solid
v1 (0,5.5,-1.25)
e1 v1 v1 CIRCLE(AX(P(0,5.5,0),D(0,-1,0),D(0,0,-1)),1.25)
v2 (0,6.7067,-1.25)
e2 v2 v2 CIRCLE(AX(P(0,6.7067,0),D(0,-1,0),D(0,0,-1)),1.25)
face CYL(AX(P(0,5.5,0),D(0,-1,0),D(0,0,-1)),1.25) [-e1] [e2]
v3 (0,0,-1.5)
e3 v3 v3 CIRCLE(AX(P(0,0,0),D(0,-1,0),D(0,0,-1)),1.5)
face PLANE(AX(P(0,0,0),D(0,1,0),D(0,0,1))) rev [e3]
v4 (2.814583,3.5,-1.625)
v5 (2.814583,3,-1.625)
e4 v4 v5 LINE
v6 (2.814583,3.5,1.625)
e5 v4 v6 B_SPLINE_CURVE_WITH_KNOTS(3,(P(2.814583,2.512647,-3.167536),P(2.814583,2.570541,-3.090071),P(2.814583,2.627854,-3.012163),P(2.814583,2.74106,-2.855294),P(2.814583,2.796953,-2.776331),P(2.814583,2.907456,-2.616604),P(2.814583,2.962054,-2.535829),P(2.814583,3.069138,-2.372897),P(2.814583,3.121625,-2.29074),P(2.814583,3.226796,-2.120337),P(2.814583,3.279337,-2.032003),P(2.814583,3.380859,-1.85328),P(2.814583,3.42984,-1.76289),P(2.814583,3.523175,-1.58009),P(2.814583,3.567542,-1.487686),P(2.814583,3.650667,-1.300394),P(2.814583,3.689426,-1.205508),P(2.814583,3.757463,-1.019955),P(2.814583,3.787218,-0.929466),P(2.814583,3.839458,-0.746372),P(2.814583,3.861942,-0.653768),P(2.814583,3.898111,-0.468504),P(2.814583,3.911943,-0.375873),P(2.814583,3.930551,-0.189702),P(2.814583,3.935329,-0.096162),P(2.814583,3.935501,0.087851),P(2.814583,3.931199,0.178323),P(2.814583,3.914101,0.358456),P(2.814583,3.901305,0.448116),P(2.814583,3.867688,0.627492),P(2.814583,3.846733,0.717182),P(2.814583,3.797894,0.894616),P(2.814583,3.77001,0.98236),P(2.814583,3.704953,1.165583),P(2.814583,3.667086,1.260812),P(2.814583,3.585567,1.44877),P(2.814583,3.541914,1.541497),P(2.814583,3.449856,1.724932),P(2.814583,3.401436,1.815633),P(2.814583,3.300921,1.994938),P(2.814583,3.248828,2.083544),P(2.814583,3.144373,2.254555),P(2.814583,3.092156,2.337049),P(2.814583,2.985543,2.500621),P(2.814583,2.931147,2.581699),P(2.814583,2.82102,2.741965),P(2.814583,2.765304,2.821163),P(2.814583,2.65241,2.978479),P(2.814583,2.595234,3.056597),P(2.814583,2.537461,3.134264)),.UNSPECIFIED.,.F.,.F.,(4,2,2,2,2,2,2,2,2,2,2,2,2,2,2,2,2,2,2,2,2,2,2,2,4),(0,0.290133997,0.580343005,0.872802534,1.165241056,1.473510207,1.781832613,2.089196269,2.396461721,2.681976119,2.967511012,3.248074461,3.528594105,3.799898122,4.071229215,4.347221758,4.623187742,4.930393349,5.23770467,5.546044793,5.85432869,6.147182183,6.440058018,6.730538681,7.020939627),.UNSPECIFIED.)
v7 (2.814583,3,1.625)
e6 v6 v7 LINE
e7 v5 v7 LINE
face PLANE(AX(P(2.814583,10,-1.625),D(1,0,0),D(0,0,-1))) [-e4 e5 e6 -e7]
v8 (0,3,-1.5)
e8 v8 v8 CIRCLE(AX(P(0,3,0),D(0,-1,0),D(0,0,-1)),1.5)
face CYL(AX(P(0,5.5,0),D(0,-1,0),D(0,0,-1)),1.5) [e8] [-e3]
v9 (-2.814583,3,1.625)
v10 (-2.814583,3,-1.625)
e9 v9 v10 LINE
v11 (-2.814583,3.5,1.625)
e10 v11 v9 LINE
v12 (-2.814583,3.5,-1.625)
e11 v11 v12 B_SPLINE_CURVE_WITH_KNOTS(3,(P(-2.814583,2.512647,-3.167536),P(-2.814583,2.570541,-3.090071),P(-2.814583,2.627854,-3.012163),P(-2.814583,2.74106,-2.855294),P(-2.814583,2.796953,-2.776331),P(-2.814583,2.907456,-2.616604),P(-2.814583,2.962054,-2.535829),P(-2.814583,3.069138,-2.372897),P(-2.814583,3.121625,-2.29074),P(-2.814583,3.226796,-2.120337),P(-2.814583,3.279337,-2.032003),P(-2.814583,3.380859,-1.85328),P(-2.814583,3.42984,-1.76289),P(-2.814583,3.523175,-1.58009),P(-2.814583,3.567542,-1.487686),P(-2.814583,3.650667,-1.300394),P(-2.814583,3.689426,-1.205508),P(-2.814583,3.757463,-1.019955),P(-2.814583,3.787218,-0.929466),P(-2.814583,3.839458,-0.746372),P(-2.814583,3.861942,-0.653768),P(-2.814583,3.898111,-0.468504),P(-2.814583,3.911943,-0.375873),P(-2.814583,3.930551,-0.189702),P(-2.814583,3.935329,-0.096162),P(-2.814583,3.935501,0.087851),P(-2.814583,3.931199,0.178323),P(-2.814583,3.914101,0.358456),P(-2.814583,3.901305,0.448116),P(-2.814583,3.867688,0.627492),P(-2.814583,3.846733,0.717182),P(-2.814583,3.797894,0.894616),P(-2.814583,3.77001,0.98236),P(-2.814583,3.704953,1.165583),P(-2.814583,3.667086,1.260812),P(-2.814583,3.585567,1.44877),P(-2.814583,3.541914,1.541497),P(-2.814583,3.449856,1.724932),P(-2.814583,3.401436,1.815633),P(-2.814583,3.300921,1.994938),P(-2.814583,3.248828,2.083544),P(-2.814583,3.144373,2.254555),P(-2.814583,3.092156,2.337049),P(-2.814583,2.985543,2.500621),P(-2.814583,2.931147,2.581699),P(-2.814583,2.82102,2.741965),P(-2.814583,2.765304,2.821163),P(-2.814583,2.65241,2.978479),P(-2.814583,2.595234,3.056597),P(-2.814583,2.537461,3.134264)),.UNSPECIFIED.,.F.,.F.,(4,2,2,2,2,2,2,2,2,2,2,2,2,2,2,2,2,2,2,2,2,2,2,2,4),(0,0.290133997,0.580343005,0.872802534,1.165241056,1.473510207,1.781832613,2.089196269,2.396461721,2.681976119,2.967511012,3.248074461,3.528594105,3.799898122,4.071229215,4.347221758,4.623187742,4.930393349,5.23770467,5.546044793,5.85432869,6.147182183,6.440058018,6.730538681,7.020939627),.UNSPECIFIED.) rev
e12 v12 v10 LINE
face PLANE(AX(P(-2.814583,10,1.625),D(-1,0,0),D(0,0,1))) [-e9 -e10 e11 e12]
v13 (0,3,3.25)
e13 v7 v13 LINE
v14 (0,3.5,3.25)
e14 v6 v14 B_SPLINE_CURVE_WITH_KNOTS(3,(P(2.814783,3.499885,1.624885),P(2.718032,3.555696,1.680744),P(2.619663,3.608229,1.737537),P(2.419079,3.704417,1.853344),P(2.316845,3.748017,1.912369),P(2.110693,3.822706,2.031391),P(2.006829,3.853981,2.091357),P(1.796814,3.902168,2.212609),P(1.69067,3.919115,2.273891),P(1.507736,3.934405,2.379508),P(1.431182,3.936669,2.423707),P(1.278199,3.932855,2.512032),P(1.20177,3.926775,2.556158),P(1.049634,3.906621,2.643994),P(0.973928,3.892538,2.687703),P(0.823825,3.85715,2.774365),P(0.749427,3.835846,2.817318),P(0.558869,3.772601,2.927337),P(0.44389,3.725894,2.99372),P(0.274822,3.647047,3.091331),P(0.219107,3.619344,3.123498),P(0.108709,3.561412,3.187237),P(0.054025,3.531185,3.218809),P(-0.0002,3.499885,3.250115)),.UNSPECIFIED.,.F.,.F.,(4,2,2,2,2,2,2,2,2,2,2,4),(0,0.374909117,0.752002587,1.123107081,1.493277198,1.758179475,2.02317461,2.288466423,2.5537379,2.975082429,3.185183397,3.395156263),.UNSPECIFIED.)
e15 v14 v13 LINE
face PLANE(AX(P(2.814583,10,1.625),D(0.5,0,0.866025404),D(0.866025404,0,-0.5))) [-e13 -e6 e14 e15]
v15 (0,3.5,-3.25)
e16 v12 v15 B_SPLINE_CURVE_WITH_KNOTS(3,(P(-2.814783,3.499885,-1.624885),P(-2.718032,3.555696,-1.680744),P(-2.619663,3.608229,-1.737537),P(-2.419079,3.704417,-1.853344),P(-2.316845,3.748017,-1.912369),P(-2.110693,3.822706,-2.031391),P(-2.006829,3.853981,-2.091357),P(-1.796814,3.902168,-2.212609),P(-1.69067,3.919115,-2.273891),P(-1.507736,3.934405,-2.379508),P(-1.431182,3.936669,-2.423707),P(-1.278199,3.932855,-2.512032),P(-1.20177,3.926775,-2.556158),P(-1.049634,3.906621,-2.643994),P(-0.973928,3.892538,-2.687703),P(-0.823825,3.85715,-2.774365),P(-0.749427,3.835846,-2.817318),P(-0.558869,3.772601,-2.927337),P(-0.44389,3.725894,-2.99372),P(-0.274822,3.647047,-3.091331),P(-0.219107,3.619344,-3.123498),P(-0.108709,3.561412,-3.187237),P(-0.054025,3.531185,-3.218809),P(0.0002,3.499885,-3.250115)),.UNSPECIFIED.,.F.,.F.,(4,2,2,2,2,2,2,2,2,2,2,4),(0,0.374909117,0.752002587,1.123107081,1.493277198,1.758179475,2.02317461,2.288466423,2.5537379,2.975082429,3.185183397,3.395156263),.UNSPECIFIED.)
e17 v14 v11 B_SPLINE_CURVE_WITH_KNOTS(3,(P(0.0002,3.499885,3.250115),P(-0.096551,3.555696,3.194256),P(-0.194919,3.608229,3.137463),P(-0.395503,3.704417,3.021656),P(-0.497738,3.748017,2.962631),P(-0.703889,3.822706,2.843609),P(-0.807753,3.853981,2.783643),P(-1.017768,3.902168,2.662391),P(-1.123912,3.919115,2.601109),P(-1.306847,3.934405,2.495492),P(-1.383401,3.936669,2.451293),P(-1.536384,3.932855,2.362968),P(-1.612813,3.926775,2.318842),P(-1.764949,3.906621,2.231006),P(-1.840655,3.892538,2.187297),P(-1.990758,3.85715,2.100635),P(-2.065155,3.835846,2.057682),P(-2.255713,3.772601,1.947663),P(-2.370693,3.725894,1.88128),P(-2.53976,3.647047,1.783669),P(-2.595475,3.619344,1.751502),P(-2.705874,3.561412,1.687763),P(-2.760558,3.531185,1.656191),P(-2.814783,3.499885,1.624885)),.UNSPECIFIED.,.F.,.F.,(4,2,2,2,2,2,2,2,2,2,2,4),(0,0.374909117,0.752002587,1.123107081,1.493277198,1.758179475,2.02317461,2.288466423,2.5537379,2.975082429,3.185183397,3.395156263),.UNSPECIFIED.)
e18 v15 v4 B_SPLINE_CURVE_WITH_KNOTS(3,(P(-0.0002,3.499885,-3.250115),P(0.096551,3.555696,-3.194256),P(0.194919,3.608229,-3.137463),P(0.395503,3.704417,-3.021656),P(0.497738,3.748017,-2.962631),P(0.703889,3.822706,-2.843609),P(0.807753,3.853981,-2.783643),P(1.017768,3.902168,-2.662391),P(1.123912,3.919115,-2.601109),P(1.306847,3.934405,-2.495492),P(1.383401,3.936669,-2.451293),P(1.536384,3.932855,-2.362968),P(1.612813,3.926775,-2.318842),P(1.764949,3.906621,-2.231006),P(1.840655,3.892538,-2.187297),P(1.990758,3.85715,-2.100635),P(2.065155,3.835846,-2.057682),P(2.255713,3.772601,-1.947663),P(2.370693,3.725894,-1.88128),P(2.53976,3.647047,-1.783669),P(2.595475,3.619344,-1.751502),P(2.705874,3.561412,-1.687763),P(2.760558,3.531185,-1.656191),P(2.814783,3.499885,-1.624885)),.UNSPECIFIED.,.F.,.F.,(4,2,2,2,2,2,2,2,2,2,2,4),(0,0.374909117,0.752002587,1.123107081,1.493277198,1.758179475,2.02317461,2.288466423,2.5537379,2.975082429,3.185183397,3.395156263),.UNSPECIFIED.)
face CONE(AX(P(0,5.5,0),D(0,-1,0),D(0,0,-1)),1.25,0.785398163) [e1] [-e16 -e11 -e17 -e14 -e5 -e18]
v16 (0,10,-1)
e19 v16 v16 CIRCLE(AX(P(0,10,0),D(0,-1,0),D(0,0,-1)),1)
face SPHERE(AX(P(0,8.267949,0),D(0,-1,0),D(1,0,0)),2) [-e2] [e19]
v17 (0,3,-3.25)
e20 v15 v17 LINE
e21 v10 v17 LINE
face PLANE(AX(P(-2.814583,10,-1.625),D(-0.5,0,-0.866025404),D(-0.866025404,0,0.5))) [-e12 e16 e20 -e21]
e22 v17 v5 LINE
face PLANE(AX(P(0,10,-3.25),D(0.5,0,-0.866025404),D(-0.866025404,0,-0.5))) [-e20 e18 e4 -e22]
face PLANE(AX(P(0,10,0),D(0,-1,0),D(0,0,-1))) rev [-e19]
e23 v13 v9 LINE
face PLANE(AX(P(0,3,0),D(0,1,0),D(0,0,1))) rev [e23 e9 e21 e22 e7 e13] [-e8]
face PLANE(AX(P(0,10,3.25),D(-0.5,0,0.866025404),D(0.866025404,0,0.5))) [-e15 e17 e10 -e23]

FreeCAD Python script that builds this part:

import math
import FreeCAD as App
import Part
import Sketcher

V = App.Vector
Q = App.Units.Quantity

doc = App.newDocument("Part")
body = doc.addObject("PartDesign::Body", "Body")

# Sketch on XY plane
sketch1 = doc.addObject("Sketcher::SketchObject", "Sketch")
body.addObject(sketch1)
sketch1.AttachmentSupport = (doc.XY_Plane, [""])
sketch1.MapMode = "FlatFace"
sketch1.addGeometry(Part.ArcOfCircle(Part.Circle(V(0, 8.267949, 0), V(0, 0, 1), 2), math.radians(-51.317813), math.radians(60)), False)
sketch1.addGeometry(Part.LineSegment(V(1, 10, 0), V(0, 10, 0)), False)
sketch1.addGeometry(Part.LineSegment(V(0, 10, 0), V(0, 0, 0)), False)
sketch1.addGeometry(Part.LineSegment(V(0, 0, 0), V(1.5, 0, 0)), False)
sketch1.addGeometry(Part.LineSegment(V(1.5, 0, 0), V(1.5, 3, 0)), False)
sketch1.addGeometry(Part.LineSegment(V(1.5, 3, 0), V(3.25, 3, 0)), False)
sketch1.addGeometry(Part.LineSegment(V(3.25, 3, 0), V(3.25, 3.5, 0)), False)
sketch1.addGeometry(Part.LineSegment(V(3.25, 3.5, 0), V(1.25, 5.5, 0)), False)
sketch1.addGeometry(Part.LineSegment(V(1.25, 5.5, 0), V(1.25, 6.7067, 0)), False)
sketch1.addConstraint(Sketcher.Constraint("Coincident", 0, 2, 1, 1))
sketch1.addConstraint(Sketcher.Constraint("Coincident", 1, 2, 2, 1))
sketch1.addConstraint(Sketcher.Constraint("Coincident", 2, 2, 3, 1))
sketch1.addConstraint(Sketcher.Constraint("Coincident", 3, 2, 4, 1))
sketch1.addConstraint(Sketcher.Constraint("Coincident", 4, 2, 5, 1))
sketch1.addConstraint(Sketcher.Constraint("Coincident", 5, 2, 6, 1))
sketch1.addConstraint(Sketcher.Constraint("Coincident", 6, 2, 7, 1))
sketch1.addConstraint(Sketcher.Constraint("Coincident", 7, 2, 8, 1))
sketch1.addConstraint(Sketcher.Constraint("Coincident", 8, 2, 0, 1))
sketch1.addConstraint(Sketcher.Constraint("Horizontal", 1))
sketch1.addConstraint(Sketcher.Constraint("Vertical", 2))
sketch1.addConstraint(Sketcher.Constraint("Horizontal", 3))
sketch1.addConstraint(Sketcher.Constraint("Vertical", 4))
sketch1.addConstraint(Sketcher.Constraint("Horizontal", 5))
sketch1.addConstraint(Sketcher.Constraint("Vertical", 6))
sketch1.addConstraint(Sketcher.Constraint("Vertical", 8))
sketch1.addConstraint(Sketcher.Constraint("Coincident", 2, 2, -1, 1))
sketch1.addConstraint(Sketcher.Constraint("PointOnObject", 0, 3, -2))
sketch1.addConstraint(Sketcher.Constraint("Radius", 0, 2.0))
sketch1.addConstraint(Sketcher.Constraint("DistanceX", 1, 2, 1, 1, 1.0))
sketch1.addConstraint(Sketcher.Constraint("DistanceY", 2, 2, 2, 1, 10.0))
sketch1.addConstraint(Sketcher.Constraint("DistanceY", 4, 1, 4, 2, 3.0))
sketch1.addConstraint(Sketcher.Constraint("Angle", 7, Q("135 deg")))
sketch1.addConstraint(Sketcher.Constraint("DistanceX", 3, 1, 3, 2, 1.5))
sketch1.addConstraint(Sketcher.Constraint("DistanceY", 6, 1, 6, 2, 0.5))
sketch1.addConstraint(Sketcher.Constraint("DistanceX", 7, 2, 6, 2, 2.0))
sketch1.addConstraint(Sketcher.Constraint("DistanceX", 5, 1, 5, 2, 1.75))
revolution = doc.addObject("PartDesign::Revolution", "Revolution")
body.addObject(revolution)
revolution.Profile = sketch1
revolution.ReferenceAxis = (sketch1, ["V_Axis"])
revolution.Angle = 360

# Sketch on XZ plane
sketch2 = doc.addObject("Sketcher::SketchObject", "Sketch001")
body.addObject(sketch2)
sketch2.AttachmentSupport = (doc.XZ_Plane, [""])
sketch2.MapMode = "FlatFace"
sketch2.AttachmentOffset = App.Placement(V(0, 0, -3), App.Rotation())
sketch2.addGeometry(Part.LineSegment(V(-5.608, 5.608, 0), V(-5.608, -5.608, 0)), False)
sketch2.addGeometry(Part.LineSegment(V(-5.608, -5.608, 0), V(5.608, -5.608, 0)), False)
sketch2.addGeometry(Part.LineSegment(V(5.608, -5.608, 0), V(5.608, 5.608, 0)), False)
sketch2.addGeometry(Part.LineSegment(V(5.608, 5.608, 0), V(-5.608, 5.608, 0)), False)
sketch2.addGeometry(Part.LineSegment(V(-2.814583, 1.625, 0), V(0, 3.25, 0)), False)
sketch2.addGeometry(Part.LineSegment(V(0, 3.25, 0), V(2.814583, 1.625, 0)), False)
sketch2.addGeometry(Part.LineSegment(V(2.814583, 1.625, 0), V(2.814583, -1.625, 0)), False)
sketch2.addGeometry(Part.LineSegment(V(2.814583, -1.625, 0), V(0, -3.25, 0)), False)
sketch2.addGeometry(Part.LineSegment(V(0, -3.25, 0), V(-2.814583, -1.625, 0)), False)
sketch2.addGeometry(Part.LineSegment(V(-2.814583, -1.625, 0), V(-2.814583, 1.625, 0)), False)
sketch2.addConstraint(Sketcher.Constraint("Coincident", 0, 2, 1, 1))
sketch2.addConstraint(Sketcher.Constraint("Coincident", 1, 2, 2, 1))
sketch2.addConstraint(Sketcher.Constraint("Coincident", 2, 2, 3, 1))
sketch2.addConstraint(Sketcher.Constraint("Coincident", 3, 2, 0, 1))
sketch2.addConstraint(Sketcher.Constraint("Coincident", 4, 2, 5, 1))
sketch2.addConstraint(Sketcher.Constraint("Coincident", 5, 2, 6, 1))
sketch2.addConstraint(Sketcher.Constraint("Coincident", 6, 2, 7, 1))
sketch2.addConstraint(Sketcher.Constraint("Coincident", 7, 2, 8, 1))
sketch2.addConstraint(Sketcher.Constraint("Coincident", 8, 2, 9, 1))
sketch2.addConstraint(Sketcher.Constraint("Coincident", 9, 2, 4, 1))
sketch2.addConstraint(Sketcher.Constraint("Vertical", 0))
sketch2.addConstraint(Sketcher.Constraint("Horizontal", 1))
sketch2.addConstraint(Sketcher.Constraint("Vertical", 2))
sketch2.addConstraint(Sketcher.Constraint("Horizontal", 3))
sketch2.addConstraint(Sketcher.Constraint("Vertical", 6))
sketch2.addConstraint(Sketcher.Constraint("Vertical", 9))
sketch2.addConstraint(Sketcher.Constraint("Symmetric", 0, 2, 2, 2, -1, 1))
sketch2.addConstraint(Sketcher.Constraint("Symmetric", 4, 2, 7, 2, -1, 1))
sketch2.addConstraint(Sketcher.Constraint("Symmetric", 5, 2, 8, 2, -1, 1))
sketch2.addConstraint(Sketcher.Constraint("PointOnObject", 4, 2, -2))
sketch2.addConstraint(Sketcher.Constraint("Parallel", 4, 7))
sketch2.addConstraint(Sketcher.Constraint("Horizontal", 6, 2, 8, 2))
sketch2.addConstraint(Sketcher.Constraint("Equal", 3, 0))
sketch2.addConstraint(Sketcher.Constraint("Angle", 4, Q("30 deg")))
sketch2.addConstraint(Sketcher.Constraint("DistanceY", 6, 2, 6, 1, 3.25))
sketch2.addConstraint(Sketcher.Constraint("DistanceY", 7, 2, 4, 2, 6.5))
sketch2.addConstraint(Sketcher.Constraint("DistanceX", 1, 1, 1, 2, 11.216))
pocket1 = doc.addObject("PartDesign::Pocket", "Pocket")
body.addObject(pocket1)
pocket1.Profile = sketch2
pocket1.Type = "ThroughAll"

doc.recompute()
